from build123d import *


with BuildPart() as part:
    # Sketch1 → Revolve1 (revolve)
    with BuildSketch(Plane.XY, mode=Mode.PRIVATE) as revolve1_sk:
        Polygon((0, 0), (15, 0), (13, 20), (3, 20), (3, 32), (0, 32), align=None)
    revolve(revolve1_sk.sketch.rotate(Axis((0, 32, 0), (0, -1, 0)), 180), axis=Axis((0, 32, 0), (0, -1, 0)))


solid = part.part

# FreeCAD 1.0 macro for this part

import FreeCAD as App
import Part
import Sketcher

doc = App.newDocument("Part")
body = doc.addObject("PartDesign::Body", "Body")

# Sketch on XY plane
sketch1 = body.newObject("Sketcher::SketchObject", "Sketch")
sketch1.AttachmentSupport = (doc.getObject("XY_Plane"), [""])
sketch1.MapMode = "FlatFace"
sketch1.addGeometry(Part.LineSegment(App.Vector(0, 0, 0), App.Vector(15, 0, 0)), False)
sketch1.addGeometry(Part.LineSegment(App.Vector(15, 0, 0), App.Vector(13, 20, 0)), False)
sketch1.addGeometry(Part.LineSegment(App.Vector(13, 20, 0), App.Vector(3, 20, 0)), False)
sketch1.addGeometry(Part.LineSegment(App.Vector(3, 20, 0), App.Vector(3, 32, 0)), False)
sketch1.addGeometry(Part.LineSegment(App.Vector(3, 32, 0), App.Vector(0, 32, 0)), False)
sketch1.addGeometry(Part.LineSegment(App.Vector(0, 32, 0), App.Vector(0, 0, 0)), False)
sketch1.addConstraint(Sketcher.Constraint("Coincident", 0, 2, 1, 1))
sketch1.addConstraint(Sketcher.Constraint("Coincident", 1, 2, 2, 1))
sketch1.addConstraint(Sketcher.Constraint("Coincident", 2, 2, 3, 1))
sketch1.addConstraint(Sketcher.Constraint("Coincident", 3, 2, 4, 1))
sketch1.addConstraint(Sketcher.Constraint("Coincident", 4, 2, 5, 1))
sketch1.addConstraint(Sketcher.Constraint("Coincident", 5, 2, 0, 1))
sketch1.addConstraint(Sketcher.Constraint("Horizontal", 0))
sketch1.addConstraint(Sketcher.Constraint("Horizontal", 2))
sketch1.addConstraint(Sketcher.Constraint("Vertical", 3))
sketch1.addConstraint(Sketcher.Constraint("Horizontal", 4))
sketch1.addConstraint(Sketcher.Constraint("Vertical", 5))
sketch1.addConstraint(Sketcher.Constraint("Coincident", 5, 2, -1, 1))
sketch1.addConstraint(Sketcher.Constraint("DistanceX", 0, 1, 0, 2, 15.0))
sketch1.addConstraint(Sketcher.Constraint("DistanceX", 2, 2, 2, 1, 10.0))
sketch1.addConstraint(Sketcher.Constraint("DistanceX", 4, 2, 4, 1, 3.0))
sketch1.addConstraint(Sketcher.Constraint("DistanceY", 3, 1, 3, 2, 12.0))
sketch1.addConstraint(Sketcher.Constraint("DistanceY", 5, 2, 5, 1, 32.0))
revolution = body.newObject("PartDesign::Revolution", "Revolution")
revolution.Profile = sketch1
revolution.ReferenceAxis = (sketch1, ["V_Axis"])
revolution.Angle = 360

doc.recompute()
